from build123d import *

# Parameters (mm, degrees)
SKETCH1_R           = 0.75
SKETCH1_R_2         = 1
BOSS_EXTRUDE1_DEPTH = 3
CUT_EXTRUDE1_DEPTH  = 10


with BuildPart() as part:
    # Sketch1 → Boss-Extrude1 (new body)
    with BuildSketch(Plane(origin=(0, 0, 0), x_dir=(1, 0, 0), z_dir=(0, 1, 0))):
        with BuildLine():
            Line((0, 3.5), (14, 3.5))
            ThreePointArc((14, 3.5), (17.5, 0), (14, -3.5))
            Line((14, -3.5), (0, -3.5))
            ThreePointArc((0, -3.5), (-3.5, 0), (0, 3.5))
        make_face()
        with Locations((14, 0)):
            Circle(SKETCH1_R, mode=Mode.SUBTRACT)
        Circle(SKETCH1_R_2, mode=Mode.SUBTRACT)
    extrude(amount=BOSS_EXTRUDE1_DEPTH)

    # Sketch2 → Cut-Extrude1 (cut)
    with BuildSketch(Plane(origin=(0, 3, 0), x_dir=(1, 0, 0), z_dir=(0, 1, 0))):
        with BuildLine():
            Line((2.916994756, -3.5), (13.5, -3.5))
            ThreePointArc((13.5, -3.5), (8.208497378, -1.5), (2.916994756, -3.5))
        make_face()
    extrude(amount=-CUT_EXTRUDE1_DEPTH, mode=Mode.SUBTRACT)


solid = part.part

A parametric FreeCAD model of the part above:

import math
import FreeCAD as App
import Part
import Sketcher
Q = App.Units.Quantity

doc = App.newDocument("Part")
params = doc.addObject("Spreadsheet::Sheet", "Params")
for row, (alias, value) in enumerate([
    ("sketch1_diameter", "2 mm"),
    ("sketch1_diameter2", "1.5 mm"),
    ("sketch1_radius", "3.5 mm"),
    ("sketch1_width", "14 mm"),
    ("pad1_length", "3 mm"),
    ("sketch2_radius", "8 mm"),
    ("pocket1_length", "10 mm"),
], start=1):
    params.set(f"A{row}", alias)
    params.set(f"B{row}", "=" + value)
    params.setAlias(f"B{row}", alias)

body = doc.addObject("PartDesign::Body", "Body")

# Sketch on XZ plane
sketch1 = body.newObject("Sketcher::SketchObject", "Sketch")
sketch1.AttachmentSupport = (doc.getObject("XZ_Plane"), [""])
sketch1.MapMode = "FlatFace"
sketch1.addGeometry(Part.LineSegment(App.Vector(14, -3.5, 0), App.Vector(0, -3.5, 0)), False)
sketch1.addGeometry(Part.ArcOfCircle(Part.Circle(App.Vector(0, 0, 0), App.Vector(0, 0, 1), 3.5), math.radians(90), math.radians(270)), False)
sketch1.addGeometry(Part.LineSegment(App.Vector(0, 3.5, 0), App.Vector(14, 3.5, 0)), False)
sketch1.addGeometry(Part.ArcOfCircle(Part.Circle(App.Vector(14, 0, 0), App.Vector(0, 0, 1), 3.5), math.radians(-90), math.radians(90)), False)
sketch1.addGeometry(Part.Circle(App.Vector(14, 0, 0), App.Vector(0, 0, 1), 0.8), False)
sketch1.addGeometry(Part.Circle(App.Vector(0, 0, 0), App.Vector(0, 0, 1), 1), False)
sketch1.addConstraint(Sketcher.Constraint("Tangent", 0, 2, 1, 2))
sketch1.addConstraint(Sketcher.Constraint("Tangent", 1, 1, 2, 1))
sketch1.addConstraint(Sketcher.Constraint("Tangent", 2, 2, 3, 2))
sketch1.addConstraint(Sketcher.Constraint("Tangent", 3, 1, 0, 1))
sketch1.addConstraint(Sketcher.Constraint("Horizontal", 0))
sketch1.addConstraint(Sketcher.Constraint("Horizontal", 2))
sketch1.addConstraint(Sketcher.Constraint("Coincident", 1, 3, -1, 1))
sketch1.addConstraint(Sketcher.Constraint("Coincident", 5, 3, -1, 1))
sketch1.addConstraint(Sketcher.Constraint("Coincident", 4, 3, 3, 3))
sketch1.addConstraint(Sketcher.Constraint("Diameter", 5, Q("2 mm")))
sketch1.addConstraint(Sketcher.Constraint("Diameter", 4, Q("1.5 mm")))
sketch1.addConstraint(Sketcher.Constraint("Radius", 1, Q("3.5 mm")))
sketch1.addConstraint(Sketcher.Constraint("DistanceX", 0, 2, 0, 1, Q("14 mm")))
sketch1.setExpression("Constraints[9]", "Params.sketch1_diameter")
sketch1.setExpression("Constraints[10]", "Params.sketch1_diameter2")
sketch1.setExpression("Constraints[11]", "Params.sketch1_radius")
sketch1.setExpression("Constraints[12]", "Params.sketch1_width")
pad1 = body.newObject("PartDesign::Pad", "Pad")
pad1.Profile = sketch1
pad1.setExpression("Length", "Params.pad1_length")
pad1.Reversed = True

# Sketch on XZ plane
sketch2 = body.newObject("Sketcher::SketchObject", "Sketch001")
sketch2.AttachmentSupport = (doc.getObject("XZ_Plane"), [""])
sketch2.MapMode = "FlatFace"
sketch2.AttachmentOffset = App.Placement(App.Vector(0, 0, -3), App.Rotation())
sketch2.addGeometry(Part.LineSegment(App.Vector(3, 4, 0), App.Vector(14, 4, 0)), False)
sketch2.addGeometry(Part.ArcOfCircle(Part.Circle(App.Vector(8, 10, 0), App.Vector(0, 0, 1), 8), math.radians(-131), math.radians(-49)), False)
sketch2.addConstraint(Sketcher.Constraint("Coincident", 0, 1, 1, 1))
sketch2.addConstraint(Sketcher.Constraint("Coincident", 1, 2, 0, 2))
sketch2.addConstraint(Sketcher.Constraint("Horizontal", 0))
sketch2.addConstraint(Sketcher.Constraint("Radius", 1, Q("8 mm")))
sketch2.addConstraint(Sketcher.Constraint("DistanceY", 0, 1, 1, 3, Q("6 mm")))
sketch2.addConstraint(Sketcher.Constraint("DistanceY", -1, 1, 1, 3, Q("9.5 mm")))
sketch2.addConstraint(Sketcher.Constraint("DistanceX", -1, 1, 1, 2, Q("13.5 mm")))
sketch2.setExpression("Constraints[3]", "Params.sketch2_radius")
pocket1 = body.newObject("PartDesign::Pocket", "Pocket")
pocket1.Profile = sketch2
pocket1.setExpression("Length", "Params.pocket1_length")
pocket1.Reversed = True

doc.recompute()
